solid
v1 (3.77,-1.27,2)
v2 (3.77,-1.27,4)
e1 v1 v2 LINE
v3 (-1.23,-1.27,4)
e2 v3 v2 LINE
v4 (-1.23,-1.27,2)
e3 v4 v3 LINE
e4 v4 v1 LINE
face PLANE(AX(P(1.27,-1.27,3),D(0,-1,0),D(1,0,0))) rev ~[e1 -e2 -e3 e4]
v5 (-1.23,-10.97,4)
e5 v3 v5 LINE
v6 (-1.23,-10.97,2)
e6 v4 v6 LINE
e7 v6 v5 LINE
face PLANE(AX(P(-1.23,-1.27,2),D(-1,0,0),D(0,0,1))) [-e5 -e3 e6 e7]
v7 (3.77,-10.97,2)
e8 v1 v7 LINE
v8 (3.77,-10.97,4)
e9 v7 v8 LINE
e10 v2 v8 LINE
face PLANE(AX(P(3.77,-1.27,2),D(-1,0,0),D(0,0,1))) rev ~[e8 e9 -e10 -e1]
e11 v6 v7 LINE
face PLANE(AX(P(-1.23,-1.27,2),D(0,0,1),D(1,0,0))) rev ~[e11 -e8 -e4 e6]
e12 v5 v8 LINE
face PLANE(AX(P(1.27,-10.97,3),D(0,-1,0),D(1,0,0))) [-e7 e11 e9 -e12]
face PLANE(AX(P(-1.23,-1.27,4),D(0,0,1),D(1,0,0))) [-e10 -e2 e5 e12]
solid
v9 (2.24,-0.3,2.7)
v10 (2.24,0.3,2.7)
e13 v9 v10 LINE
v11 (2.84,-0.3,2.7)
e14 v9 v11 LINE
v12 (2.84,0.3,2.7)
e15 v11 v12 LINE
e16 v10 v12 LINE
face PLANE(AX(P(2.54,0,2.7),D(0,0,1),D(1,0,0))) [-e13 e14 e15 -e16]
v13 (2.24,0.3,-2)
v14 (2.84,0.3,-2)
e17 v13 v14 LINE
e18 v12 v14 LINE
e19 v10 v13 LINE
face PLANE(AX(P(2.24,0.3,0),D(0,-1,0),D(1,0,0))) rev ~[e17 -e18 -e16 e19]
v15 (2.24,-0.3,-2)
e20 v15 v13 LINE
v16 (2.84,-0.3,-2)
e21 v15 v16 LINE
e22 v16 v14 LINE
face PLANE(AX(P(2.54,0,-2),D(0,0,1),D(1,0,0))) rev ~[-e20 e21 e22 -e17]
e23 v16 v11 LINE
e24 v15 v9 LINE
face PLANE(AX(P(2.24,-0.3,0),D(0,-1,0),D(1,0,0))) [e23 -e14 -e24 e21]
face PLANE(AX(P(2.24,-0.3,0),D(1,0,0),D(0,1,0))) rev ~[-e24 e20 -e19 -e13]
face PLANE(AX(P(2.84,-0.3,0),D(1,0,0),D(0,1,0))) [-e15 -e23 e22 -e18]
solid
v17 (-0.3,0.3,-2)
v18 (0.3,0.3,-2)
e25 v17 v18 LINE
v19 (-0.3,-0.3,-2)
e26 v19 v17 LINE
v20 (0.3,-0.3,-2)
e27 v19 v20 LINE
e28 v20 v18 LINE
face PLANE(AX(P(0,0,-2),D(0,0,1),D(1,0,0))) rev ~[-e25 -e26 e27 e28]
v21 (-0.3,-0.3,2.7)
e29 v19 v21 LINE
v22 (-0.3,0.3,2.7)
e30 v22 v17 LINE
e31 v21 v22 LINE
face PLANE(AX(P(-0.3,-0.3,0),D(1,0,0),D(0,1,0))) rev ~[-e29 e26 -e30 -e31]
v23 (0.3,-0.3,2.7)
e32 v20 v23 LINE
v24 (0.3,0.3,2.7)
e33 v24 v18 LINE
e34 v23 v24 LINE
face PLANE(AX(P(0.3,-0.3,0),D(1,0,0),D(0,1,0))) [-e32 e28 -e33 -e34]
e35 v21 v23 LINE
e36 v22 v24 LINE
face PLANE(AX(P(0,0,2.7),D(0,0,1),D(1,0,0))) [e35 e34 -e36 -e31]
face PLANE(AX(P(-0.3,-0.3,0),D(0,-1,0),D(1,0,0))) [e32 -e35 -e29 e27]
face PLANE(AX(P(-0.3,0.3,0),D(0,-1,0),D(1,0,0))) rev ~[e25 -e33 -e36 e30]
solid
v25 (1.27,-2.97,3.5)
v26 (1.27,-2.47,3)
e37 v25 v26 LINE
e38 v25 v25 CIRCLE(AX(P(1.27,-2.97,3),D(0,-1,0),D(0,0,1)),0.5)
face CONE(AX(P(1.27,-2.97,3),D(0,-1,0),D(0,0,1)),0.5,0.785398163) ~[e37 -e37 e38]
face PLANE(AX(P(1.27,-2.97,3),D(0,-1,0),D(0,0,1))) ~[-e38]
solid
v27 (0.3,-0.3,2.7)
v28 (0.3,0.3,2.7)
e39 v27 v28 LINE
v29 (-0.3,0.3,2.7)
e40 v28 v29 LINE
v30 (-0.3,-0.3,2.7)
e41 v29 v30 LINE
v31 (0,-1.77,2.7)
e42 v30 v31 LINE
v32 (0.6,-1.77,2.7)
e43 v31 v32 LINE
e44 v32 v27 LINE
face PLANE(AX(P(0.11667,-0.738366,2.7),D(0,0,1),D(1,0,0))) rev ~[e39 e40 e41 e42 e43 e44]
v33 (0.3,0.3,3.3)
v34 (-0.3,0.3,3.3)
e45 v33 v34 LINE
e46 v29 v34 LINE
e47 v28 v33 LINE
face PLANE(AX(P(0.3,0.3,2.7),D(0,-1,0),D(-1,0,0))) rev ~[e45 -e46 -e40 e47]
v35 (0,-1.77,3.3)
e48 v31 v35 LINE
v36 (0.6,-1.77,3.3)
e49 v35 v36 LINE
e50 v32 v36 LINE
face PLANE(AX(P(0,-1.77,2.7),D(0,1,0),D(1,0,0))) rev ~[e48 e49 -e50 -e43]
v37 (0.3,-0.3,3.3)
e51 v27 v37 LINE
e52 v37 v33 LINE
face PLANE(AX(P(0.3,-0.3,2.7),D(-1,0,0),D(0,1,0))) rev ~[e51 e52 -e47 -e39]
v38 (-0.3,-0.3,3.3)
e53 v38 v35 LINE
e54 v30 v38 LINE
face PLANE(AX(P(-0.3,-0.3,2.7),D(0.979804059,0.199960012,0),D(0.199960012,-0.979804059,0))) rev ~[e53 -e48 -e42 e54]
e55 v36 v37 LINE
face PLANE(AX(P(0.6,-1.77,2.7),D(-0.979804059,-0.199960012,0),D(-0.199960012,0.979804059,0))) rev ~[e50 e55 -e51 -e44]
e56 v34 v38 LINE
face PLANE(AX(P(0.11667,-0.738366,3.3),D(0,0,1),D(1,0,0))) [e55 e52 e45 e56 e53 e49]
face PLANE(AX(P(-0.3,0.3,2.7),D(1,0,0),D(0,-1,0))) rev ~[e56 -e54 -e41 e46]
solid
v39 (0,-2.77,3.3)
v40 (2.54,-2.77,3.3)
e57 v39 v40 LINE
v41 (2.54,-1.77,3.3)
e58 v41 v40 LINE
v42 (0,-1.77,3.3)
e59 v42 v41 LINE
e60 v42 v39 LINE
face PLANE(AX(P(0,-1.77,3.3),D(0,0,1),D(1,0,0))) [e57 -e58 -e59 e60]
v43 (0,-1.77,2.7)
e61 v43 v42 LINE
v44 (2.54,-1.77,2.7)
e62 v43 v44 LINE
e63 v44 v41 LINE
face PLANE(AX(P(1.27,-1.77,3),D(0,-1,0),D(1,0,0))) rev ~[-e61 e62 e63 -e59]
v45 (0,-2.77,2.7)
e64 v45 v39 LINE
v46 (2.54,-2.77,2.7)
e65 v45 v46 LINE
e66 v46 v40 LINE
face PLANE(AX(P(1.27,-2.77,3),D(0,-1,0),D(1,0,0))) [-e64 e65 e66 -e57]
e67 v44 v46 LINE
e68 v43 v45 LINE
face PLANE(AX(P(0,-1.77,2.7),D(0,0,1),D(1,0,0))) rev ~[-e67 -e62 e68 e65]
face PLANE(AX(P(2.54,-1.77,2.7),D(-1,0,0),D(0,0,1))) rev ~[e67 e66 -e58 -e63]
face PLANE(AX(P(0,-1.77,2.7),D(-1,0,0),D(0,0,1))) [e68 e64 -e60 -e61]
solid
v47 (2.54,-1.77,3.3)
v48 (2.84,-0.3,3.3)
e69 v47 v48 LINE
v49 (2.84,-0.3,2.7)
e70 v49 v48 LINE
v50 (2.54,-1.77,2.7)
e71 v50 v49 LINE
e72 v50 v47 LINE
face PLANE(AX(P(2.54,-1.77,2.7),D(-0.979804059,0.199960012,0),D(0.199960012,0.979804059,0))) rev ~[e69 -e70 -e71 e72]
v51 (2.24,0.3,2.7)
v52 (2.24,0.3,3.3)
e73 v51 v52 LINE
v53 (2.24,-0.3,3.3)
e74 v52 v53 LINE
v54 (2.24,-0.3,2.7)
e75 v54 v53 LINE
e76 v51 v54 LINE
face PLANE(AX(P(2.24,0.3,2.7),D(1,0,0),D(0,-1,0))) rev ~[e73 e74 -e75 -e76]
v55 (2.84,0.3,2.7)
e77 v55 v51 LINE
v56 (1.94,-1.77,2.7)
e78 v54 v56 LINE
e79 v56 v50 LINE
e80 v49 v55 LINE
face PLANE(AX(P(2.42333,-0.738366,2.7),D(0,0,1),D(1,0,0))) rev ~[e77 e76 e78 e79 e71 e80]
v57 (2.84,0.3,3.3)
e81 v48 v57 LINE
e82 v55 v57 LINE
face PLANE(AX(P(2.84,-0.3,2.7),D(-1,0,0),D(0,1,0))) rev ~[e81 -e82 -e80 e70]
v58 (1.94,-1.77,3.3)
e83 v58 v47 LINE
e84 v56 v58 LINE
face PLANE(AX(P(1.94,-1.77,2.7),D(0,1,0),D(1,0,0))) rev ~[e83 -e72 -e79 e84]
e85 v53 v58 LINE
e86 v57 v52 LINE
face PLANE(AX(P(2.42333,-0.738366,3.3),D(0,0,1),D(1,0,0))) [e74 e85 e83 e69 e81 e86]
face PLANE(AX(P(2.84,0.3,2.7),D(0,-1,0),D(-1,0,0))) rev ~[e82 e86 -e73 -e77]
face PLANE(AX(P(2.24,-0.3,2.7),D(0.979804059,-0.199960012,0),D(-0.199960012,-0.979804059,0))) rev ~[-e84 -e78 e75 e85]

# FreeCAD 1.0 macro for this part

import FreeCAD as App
import Part
import Sketcher

doc = App.newDocument("Part")
params = doc.addObject("Spreadsheet::Sheet", "Params")
for row, (alias, value) in enumerate([
    ("sketch1_width", "0.6 mm"),
    ("pad1_length", "2.7 mm"),
    ("pad1_length2", "2 mm"),
    ("sketch2_width", "0.6 mm"),
    ("pad2_length", "0.6 mm"),
    ("sketch3_height", "0.6 mm"),
    ("sketch3_width", "2.54 mm"),
    ("pad3_length", "1 mm"),
    ("sketch4_width", "5 mm"),
    ("sketch4_height", "2 mm"),
    ("pad4_length", "9.7 mm"),
    ("sketch5_width", "0.5 mm"),
    ("revolution_angle", "360 deg"),
], start=1):
    params.set(f"A{row}", alias)
    params.set(f"B{row}", "=" + value)
    params.setAlias(f"B{row}", alias)

body = doc.addObject("PartDesign::Body", "Body")
body.AllowCompound = True

# Sketch on XY plane
sketch1 = doc.addObject("Sketcher::SketchObject", "Sketch")
body.addObject(sketch1)
sketch1.AttachmentSupport = (doc.XY_Plane, [""])
sketch1.MapMode = "FlatFace"
sketch1.addGeometry([
    Part.LineSegment(App.Vector(-0.3, 0.3, 0), App.Vector(-0.3, -0.3, 0)),  # 0
    Part.LineSegment(App.Vector(-0.3, -0.3, 0), App.Vector(0.3, -0.3, 0)),  # 1
    Part.LineSegment(App.Vector(0.3, -0.3, 0), App.Vector(0.3, 0.3, 0)),  # 2
    Part.LineSegment(App.Vector(0.3, 0.3, 0), App.Vector(-0.3, 0.3, 0)),  # 3
    Part.LineSegment(App.Vector(2.2, 0.3, 0), App.Vector(2.2, -0.3, 0)),  # 4
    Part.LineSegment(App.Vector(2.2, -0.3, 0), App.Vector(2.8, -0.3, 0)),  # 5
    Part.LineSegment(App.Vector(2.8, -0.3, 0), App.Vector(2.8, 0.3, 0)),  # 6
    Part.LineSegment(App.Vector(2.8, 0.3, 0), App.Vector(2.2, 0.3, 0)),  # 7
], False)
sketch1.addConstraint([
    Sketcher.Constraint("Coincident", 0, 2, 1, 1),
    Sketcher.Constraint("Coincident", 1, 2, 2, 1),
    Sketcher.Constraint("Coincident", 2, 2, 3, 1),
    Sketcher.Constraint("Coincident", 3, 2, 0, 1),
    Sketcher.Constraint("Coincident", 4, 2, 5, 1),
    Sketcher.Constraint("Coincident", 5, 2, 6, 1),
    Sketcher.Constraint("Coincident", 6, 2, 7, 1),
    Sketcher.Constraint("Coincident", 7, 2, 4, 1),
    Sketcher.Constraint("Vertical", 0),
    Sketcher.Constraint("Horizontal", 1),
    Sketcher.Constraint("Vertical", 2),
    Sketcher.Constraint("Horizontal", 3),
    Sketcher.Constraint("Vertical", 4),
    Sketcher.Constraint("Horizontal", 5),
    Sketcher.Constraint("Vertical", 6),
    Sketcher.Constraint("Horizontal", 7),
    Sketcher.Constraint("Symmetric", 0, 2, 2, 2, -1, 1),
    Sketcher.Constraint("Horizontal", 1, 2, 4, 2),
    Sketcher.Constraint("Horizontal", 3, 2, 6, 2),
    Sketcher.Constraint("Equal", 3, 5),
    Sketcher.Constraint("Equal", 7, 0),
    Sketcher.Constraint("DistanceX", 1, 1, 1, 2, 0.6),
    Sketcher.Constraint("DistanceX", -1, 1, 4, 2, 2.24),
])
sketch1.setExpression("Constraints[21]", "Params.sketch1_width")
pad1 = doc.addObject("PartDesign::Pad", "Pad")
body.addObject(pad1)
pad1.Profile = sketch1
pad1.Type = "TwoLengths"
pad1.setExpression("Length", "Params.pad1_length")
pad1.setExpression("Length2", "Params.pad1_length2")
body2 = doc.addObject("PartDesign::Body", "Body001")
body2.AllowCompound = True

# Sketch on XY plane
sketch2 = doc.addObject("Sketcher::SketchObject", "Sketch001")
body2.addObject(sketch2)
sketch2.AttachmentSupport = (doc.getObject("XY_Plane001"), [""])
sketch2.MapMode = "FlatFace"
sketch2.AttachmentOffset = App.Placement(App.Vector(0, 0, 2.7), App.Rotation())
sketch2.addGeometry([
    Part.LineSegment(App.Vector(0.3, 0.3, 0), App.Vector(-0.3, 0.3, 0)),  # 0
    Part.LineSegment(App.Vector(-0.3, 0.3, 0), App.Vector(-0.3, -0.3, 0)),  # 1
    Part.LineSegment(App.Vector(-0.3, -0.3, 0), App.Vector(0, -1.8, 0)),  # 2
    Part.LineSegment(App.Vector(0, -1.8, 0), App.Vector(0.6, -1.8, 0)),  # 3
    Part.LineSegment(App.Vector(0.6, -1.8, 0), App.Vector(0.3, -0.3, 0)),  # 4
    Part.LineSegment(App.Vector(0.3, -0.3, 0), App.Vector(0.3, 0.3, 0)),  # 5
    Part.LineSegment(App.Vector(2.8, 0.3, 0), App.Vector(2.2, 0.3, 0)),  # 6
    Part.LineSegment(App.Vector(2.2, 0.3, 0), App.Vector(2.2, -0.3, 0)),  # 7
    Part.LineSegment(App.Vector(2.2, -0.3, 0), App.Vector(1.9, -1.8, 0)),  # 8
    Part.LineSegment(App.Vector(1.9, -1.8, 0), App.Vector(2.5, -1.8, 0)),  # 9
    Part.LineSegment(App.Vector(2.5, -1.8, 0), App.Vector(2.8, -0.3, 0)),  # 10
    Part.LineSegment(App.Vector(2.8, -0.3, 0), App.Vector(2.8, 0.3, 0)),  # 11
], False)
sketch2.addConstraint([
    Sketcher.Constraint("Coincident", 0, 2, 1, 1),
    Sketcher.Constraint("Coincident", 1, 2, 2, 1),
    Sketcher.Constraint("Coincident", 2, 2, 3, 1),
    Sketcher.Constraint("Coincident", 3, 2, 4, 1),
    Sketcher.Constraint("Coincident", 4, 2, 5, 1),
    Sketcher.Constraint("Coincident", 5, 2, 0, 1),
    Sketcher.Constraint("Coincident", 6, 2, 7, 1),
    Sketcher.Constraint("Coincident", 7, 2, 8, 1),
    Sketcher.Constraint("Coincident", 8, 2, 9, 1),
    Sketcher.Constraint("Coincident", 9, 2, 10, 1),
    Sketcher.Constraint("Coincident", 10, 2, 11, 1),
    Sketcher.Constraint("Coincident", 11, 2, 6, 1),
    Sketcher.Constraint("Horizontal", 0),
    Sketcher.Constraint("Vertical", 1),
    Sketcher.Constraint("Horizontal", 3),
    Sketcher.Constraint("Vertical", 5),
    Sketcher.Constraint("Horizontal", 6),
    Sketcher.Constraint("Vertical", 7),
    Sketcher.Constraint("Horizontal", 9),
    Sketcher.Constraint("Vertical", 11),
    Sketcher.Constraint("Symmetric", 0, 2, 4, 2, -1, 1),
    Sketcher.Constraint("PointOnObject", 2, 2, -2),
    Sketcher.Constraint("Parallel", 2, 4),
    Sketcher.Constraint("Parallel", 8, 10),
    Sketcher.Constraint("Horizontal", 1, 2, 4, 2),
    Sketcher.Constraint("Horizontal", 5, 2, 6, 2),
    Sketcher.Constraint("Horizontal", 4, 2, 7, 2),
    Sketcher.Constraint("Horizontal", 3, 2, 8, 2),
    Sketcher.Constraint("Horizontal", 7, 2, 10, 2),
    Sketcher.Constraint("Equal", 3, 6),
    Sketcher.Constraint("Equal", 9, 1),
    Sketcher.Constraint("Equal", 4, 8),
    Sketcher.Constraint("DistanceX", 0, 2, 0, 1, 0.6),
    Sketcher.Constraint("DistanceY", 2, 2, -1, 1, 1.77),
    Sketcher.Constraint("DistanceX", -1, 1, 6, 2, 2.24),
])
sketch2.setExpression("Constraints[32]", "Params.sketch2_width")
pad2 = doc.addObject("PartDesign::Pad", "Pad001")
body2.addObject(pad2)
pad2.Profile = sketch2
pad2.setExpression("Length", "Params.pad2_length")
body3 = doc.addObject("PartDesign::Body", "Body002")

# Sketch on XZ plane
sketch3 = doc.addObject("Sketcher::SketchObject", "Sketch002")
body3.addObject(sketch3)
sketch3.AttachmentSupport = (doc.getObject("XZ_Plane002"), [""])
sketch3.MapMode = "FlatFace"
sketch3.AttachmentOffset = App.Placement(App.Vector(0, 0, 1.77), App.Rotation())
sketch3.addGeometry([
    Part.LineSegment(App.Vector(0, 3.3, 0), App.Vector(0, 2.7, 0)),
    Part.LineSegment(App.Vector(0, 2.7, 0), App.Vector(2.5, 2.7, 0)),
    Part.LineSegment(App.Vector(2.5, 2.7, 0), App.Vector(2.5, 3.3, 0)),
    Part.LineSegment(App.Vector(2.5, 3.3, 0), App.Vector(0, 3.3, 0)),
], False)
sketch3.addConstraint([
    Sketcher.Constraint("Coincident", 0, 2, 1, 1),
    Sketcher.Constraint("Coincident", 1, 2, 2, 1),
    Sketcher.Constraint("Coincident", 2, 2, 3, 1),
    Sketcher.Constraint("Coincident", 3, 2, 0, 1),
    Sketcher.Constraint("Vertical", 0),
    Sketcher.Constraint("Horizontal", 1),
    Sketcher.Constraint("Vertical", 2),
    Sketcher.Constraint("Horizontal", 3),
    Sketcher.Constraint("PointOnObject", 0, 2, -2),
    Sketcher.Constraint("DistanceY", 0, 2, 0, 1, 0.6),
    Sketcher.Constraint("DistanceX", 1, 1, 1, 2, 2.54),
    Sketcher.Constraint("DistanceY", -1, 1, 0, 2, 2.7),
])
sketch3.setExpression("Constraints[9]", "Params.sketch3_height")
sketch3.setExpression("Constraints[10]", "Params.sketch3_width")
pad3 = doc.addObject("PartDesign::Pad", "Pad002")
body3.addObject(pad3)
pad3.Profile = sketch3
pad3.setExpression("Length", "Params.pad3_length")
body4 = doc.addObject("PartDesign::Body", "Body003")

# Sketch on XZ plane
sketch4 = doc.addObject("Sketcher::SketchObject", "Sketch003")
body4.addObject(sketch4)
sketch4.AttachmentSupport = (doc.getObject("XZ_Plane003"), [""])
sketch4.MapMode = "FlatFace"
sketch4.AttachmentOffset = App.Placement(App.Vector(0, 0, 1.27), App.Rotation())
sketch4.addGeometry([
    Part.LineSegment(App.Vector(-1.2, 4, 0), App.Vector(-1.2, 2, 0)),
    Part.LineSegment(App.Vector(-1.2, 2, 0), App.Vector(3.8, 2, 0)),
    Part.LineSegment(App.Vector(3.8, 2, 0), App.Vector(3.8, 4, 0)),
    Part.LineSegment(App.Vector(3.8, 4, 0), App.Vector(-1.2, 4, 0)),
], False)
sketch4.addConstraint([
    Sketcher.Constraint("Coincident", 0, 2, 1, 1),
    Sketcher.Constraint("Coincident", 1, 2, 2, 1),
    Sketcher.Constraint("Coincident", 2, 2, 3, 1),
    Sketcher.Constraint("Coincident", 3, 2, 0, 1),
    Sketcher.Constraint("Vertical", 0),
    Sketcher.Constraint("Horizontal", 1),
    Sketcher.Constraint("Vertical", 2),
    Sketcher.Constraint("Horizontal", 3),
    Sketcher.Constraint("DistanceX", 1, 1, 1, 2, 5.0),
    Sketcher.Constraint("DistanceY", 0, 2, 0, 1, 2.0),
    Sketcher.Constraint("DistanceY", -1, 1, 0, 2, 2.0),
    Sketcher.Constraint("DistanceX", 0, 2, -1, 1, 1.23),
])
sketch4.setExpression("Constraints[8]", "Params.sketch4_width")
sketch4.setExpression("Constraints[9]", "Params.sketch4_height")
pad4 = doc.addObject("PartDesign::Pad", "Pad003")
body4.addObject(pad4)
pad4.Profile = sketch4
pad4.setExpression("Length", "Params.pad4_length")
body5 = doc.addObject("PartDesign::Body", "Body004")

# Sketch on YZ plane
sketch5 = doc.addObject("Sketcher::SketchObject", "Sketch004")
body5.addObject(sketch5)
sketch5.AttachmentSupport = (doc.getObject("YZ_Plane004"), [""])
sketch5.MapMode = "FlatFace"
sketch5.AttachmentOffset = App.Placement(App.Vector(0, 0, 1.27), App.Rotation())
sketch5.addGeometry([
    Part.LineSegment(App.Vector(-3, 3, 0), App.Vector(-2.5, 3, 0)),
    Part.LineSegment(App.Vector(-2.5, 3, 0), App.Vector(-3, 3.5, 0)),
    Part.LineSegment(App.Vector(-3, 3.5, 0), App.Vector(-3, 3, 0)),
], False)
sketch5.addGeometry(Part.LineSegment(App.Vector(-2.5, 3, 0), App.Vector(-3, 3, 0)), True)  # axis
sketch5.addConstraint([
    Sketcher.Constraint("Coincident", 0, 2, 1, 1),
    Sketcher.Constraint("Coincident", 1, 2, 2, 1),
    Sketcher.Constraint("Coincident", 2, 2, 0, 1),
    Sketcher.Constraint("Horizontal", 0),
    Sketcher.Constraint("Vertical", 2),
    Sketcher.Constraint("Horizontal", 3),
    Sketcher.Constraint("Coincident", 3, 1, 0, 2),
    Sketcher.Constraint("Vertical", 1, 2, 3, 2),
    Sketcher.Constraint("Equal", 3, 2),
    Sketcher.Constraint("DistanceX", 0, 1, 0, 2, 0.5),
    Sketcher.Constraint("DistanceY", -1, 1, 0, 2, 3.0),
    Sketcher.Constraint("DistanceX", 0, 2, -1, 1, 2.47),
])
sketch5.setExpression("Constraints[9]", "Params.sketch5_width")
revolution = doc.addObject("PartDesign::Revolution", "Revolution")
body5.addObject(revolution)
revolution.Profile = sketch5
revolution.ReferenceAxis = (sketch5, ["Axis0"])
revolution.setExpression("Angle", "Params.revolution_angle")

doc.recompute()
